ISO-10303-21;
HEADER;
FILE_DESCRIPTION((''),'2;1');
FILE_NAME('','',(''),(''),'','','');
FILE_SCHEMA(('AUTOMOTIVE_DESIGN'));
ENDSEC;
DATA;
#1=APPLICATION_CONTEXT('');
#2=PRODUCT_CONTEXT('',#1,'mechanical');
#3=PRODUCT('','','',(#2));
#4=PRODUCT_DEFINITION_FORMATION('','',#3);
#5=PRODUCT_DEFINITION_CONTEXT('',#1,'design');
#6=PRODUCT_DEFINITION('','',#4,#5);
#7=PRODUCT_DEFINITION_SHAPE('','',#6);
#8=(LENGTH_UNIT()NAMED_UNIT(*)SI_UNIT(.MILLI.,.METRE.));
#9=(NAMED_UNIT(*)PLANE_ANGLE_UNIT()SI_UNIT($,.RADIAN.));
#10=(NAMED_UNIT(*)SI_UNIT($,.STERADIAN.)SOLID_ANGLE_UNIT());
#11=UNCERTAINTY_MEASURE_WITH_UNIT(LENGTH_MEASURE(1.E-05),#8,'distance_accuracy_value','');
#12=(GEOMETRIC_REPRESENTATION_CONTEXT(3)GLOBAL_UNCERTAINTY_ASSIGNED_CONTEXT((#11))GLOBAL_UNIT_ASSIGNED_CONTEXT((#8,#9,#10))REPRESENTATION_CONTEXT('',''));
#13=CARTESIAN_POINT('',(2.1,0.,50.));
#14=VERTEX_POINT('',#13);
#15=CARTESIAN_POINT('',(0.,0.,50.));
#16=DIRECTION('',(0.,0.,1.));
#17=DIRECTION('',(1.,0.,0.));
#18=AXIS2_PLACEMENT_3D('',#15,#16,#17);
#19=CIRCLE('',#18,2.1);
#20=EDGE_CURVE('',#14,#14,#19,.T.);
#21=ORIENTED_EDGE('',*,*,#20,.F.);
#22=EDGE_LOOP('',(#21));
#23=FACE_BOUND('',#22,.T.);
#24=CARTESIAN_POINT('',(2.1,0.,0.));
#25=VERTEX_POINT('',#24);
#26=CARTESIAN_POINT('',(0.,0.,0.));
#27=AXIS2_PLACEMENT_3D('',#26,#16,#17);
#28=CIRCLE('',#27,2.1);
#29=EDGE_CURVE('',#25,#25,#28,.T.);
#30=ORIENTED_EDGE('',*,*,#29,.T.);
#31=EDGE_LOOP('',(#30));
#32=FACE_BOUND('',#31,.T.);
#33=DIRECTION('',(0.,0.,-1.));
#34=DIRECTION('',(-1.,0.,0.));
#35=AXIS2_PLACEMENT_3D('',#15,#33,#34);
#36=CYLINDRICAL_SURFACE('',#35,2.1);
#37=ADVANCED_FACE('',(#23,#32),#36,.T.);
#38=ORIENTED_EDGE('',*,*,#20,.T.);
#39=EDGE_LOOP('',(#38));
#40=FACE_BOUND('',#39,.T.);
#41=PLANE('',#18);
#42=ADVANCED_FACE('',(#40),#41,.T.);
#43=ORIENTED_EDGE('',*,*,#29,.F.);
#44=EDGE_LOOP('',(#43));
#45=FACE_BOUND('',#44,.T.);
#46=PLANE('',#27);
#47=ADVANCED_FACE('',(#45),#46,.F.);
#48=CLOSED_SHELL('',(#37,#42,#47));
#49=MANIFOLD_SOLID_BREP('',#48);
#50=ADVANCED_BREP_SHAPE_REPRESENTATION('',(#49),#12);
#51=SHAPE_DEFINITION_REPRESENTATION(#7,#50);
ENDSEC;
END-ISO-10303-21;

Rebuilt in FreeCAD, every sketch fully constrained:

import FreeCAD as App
import Part
import Sketcher

V = App.Vector
Q = App.Units.Quantity

doc = App.newDocument("Part")
body = doc.addObject("PartDesign::Body", "Body")

sketch1 = body.newObject("Sketcher::SketchObject", "Sketch")
sketch1.AttachmentSupport = (doc.getObject("XY_Plane"), [""])
sketch1.MapMode = "FlatFace"
sketch1.addGeometry(Part.Circle(V(0, 0, 0), V(0, 0, 1), 2.1), False)
sketch1.addConstraint([
    Sketcher.Constraint("Coincident", 0, 3, -1, 1),
    Sketcher.Constraint("Diameter", 0, Q("4.2 mm")),
])
pad1 = body.newObject("PartDesign::Pad", "Pad")
pad1.Profile = sketch1
pad1.Length = 50

doc.recompute()
